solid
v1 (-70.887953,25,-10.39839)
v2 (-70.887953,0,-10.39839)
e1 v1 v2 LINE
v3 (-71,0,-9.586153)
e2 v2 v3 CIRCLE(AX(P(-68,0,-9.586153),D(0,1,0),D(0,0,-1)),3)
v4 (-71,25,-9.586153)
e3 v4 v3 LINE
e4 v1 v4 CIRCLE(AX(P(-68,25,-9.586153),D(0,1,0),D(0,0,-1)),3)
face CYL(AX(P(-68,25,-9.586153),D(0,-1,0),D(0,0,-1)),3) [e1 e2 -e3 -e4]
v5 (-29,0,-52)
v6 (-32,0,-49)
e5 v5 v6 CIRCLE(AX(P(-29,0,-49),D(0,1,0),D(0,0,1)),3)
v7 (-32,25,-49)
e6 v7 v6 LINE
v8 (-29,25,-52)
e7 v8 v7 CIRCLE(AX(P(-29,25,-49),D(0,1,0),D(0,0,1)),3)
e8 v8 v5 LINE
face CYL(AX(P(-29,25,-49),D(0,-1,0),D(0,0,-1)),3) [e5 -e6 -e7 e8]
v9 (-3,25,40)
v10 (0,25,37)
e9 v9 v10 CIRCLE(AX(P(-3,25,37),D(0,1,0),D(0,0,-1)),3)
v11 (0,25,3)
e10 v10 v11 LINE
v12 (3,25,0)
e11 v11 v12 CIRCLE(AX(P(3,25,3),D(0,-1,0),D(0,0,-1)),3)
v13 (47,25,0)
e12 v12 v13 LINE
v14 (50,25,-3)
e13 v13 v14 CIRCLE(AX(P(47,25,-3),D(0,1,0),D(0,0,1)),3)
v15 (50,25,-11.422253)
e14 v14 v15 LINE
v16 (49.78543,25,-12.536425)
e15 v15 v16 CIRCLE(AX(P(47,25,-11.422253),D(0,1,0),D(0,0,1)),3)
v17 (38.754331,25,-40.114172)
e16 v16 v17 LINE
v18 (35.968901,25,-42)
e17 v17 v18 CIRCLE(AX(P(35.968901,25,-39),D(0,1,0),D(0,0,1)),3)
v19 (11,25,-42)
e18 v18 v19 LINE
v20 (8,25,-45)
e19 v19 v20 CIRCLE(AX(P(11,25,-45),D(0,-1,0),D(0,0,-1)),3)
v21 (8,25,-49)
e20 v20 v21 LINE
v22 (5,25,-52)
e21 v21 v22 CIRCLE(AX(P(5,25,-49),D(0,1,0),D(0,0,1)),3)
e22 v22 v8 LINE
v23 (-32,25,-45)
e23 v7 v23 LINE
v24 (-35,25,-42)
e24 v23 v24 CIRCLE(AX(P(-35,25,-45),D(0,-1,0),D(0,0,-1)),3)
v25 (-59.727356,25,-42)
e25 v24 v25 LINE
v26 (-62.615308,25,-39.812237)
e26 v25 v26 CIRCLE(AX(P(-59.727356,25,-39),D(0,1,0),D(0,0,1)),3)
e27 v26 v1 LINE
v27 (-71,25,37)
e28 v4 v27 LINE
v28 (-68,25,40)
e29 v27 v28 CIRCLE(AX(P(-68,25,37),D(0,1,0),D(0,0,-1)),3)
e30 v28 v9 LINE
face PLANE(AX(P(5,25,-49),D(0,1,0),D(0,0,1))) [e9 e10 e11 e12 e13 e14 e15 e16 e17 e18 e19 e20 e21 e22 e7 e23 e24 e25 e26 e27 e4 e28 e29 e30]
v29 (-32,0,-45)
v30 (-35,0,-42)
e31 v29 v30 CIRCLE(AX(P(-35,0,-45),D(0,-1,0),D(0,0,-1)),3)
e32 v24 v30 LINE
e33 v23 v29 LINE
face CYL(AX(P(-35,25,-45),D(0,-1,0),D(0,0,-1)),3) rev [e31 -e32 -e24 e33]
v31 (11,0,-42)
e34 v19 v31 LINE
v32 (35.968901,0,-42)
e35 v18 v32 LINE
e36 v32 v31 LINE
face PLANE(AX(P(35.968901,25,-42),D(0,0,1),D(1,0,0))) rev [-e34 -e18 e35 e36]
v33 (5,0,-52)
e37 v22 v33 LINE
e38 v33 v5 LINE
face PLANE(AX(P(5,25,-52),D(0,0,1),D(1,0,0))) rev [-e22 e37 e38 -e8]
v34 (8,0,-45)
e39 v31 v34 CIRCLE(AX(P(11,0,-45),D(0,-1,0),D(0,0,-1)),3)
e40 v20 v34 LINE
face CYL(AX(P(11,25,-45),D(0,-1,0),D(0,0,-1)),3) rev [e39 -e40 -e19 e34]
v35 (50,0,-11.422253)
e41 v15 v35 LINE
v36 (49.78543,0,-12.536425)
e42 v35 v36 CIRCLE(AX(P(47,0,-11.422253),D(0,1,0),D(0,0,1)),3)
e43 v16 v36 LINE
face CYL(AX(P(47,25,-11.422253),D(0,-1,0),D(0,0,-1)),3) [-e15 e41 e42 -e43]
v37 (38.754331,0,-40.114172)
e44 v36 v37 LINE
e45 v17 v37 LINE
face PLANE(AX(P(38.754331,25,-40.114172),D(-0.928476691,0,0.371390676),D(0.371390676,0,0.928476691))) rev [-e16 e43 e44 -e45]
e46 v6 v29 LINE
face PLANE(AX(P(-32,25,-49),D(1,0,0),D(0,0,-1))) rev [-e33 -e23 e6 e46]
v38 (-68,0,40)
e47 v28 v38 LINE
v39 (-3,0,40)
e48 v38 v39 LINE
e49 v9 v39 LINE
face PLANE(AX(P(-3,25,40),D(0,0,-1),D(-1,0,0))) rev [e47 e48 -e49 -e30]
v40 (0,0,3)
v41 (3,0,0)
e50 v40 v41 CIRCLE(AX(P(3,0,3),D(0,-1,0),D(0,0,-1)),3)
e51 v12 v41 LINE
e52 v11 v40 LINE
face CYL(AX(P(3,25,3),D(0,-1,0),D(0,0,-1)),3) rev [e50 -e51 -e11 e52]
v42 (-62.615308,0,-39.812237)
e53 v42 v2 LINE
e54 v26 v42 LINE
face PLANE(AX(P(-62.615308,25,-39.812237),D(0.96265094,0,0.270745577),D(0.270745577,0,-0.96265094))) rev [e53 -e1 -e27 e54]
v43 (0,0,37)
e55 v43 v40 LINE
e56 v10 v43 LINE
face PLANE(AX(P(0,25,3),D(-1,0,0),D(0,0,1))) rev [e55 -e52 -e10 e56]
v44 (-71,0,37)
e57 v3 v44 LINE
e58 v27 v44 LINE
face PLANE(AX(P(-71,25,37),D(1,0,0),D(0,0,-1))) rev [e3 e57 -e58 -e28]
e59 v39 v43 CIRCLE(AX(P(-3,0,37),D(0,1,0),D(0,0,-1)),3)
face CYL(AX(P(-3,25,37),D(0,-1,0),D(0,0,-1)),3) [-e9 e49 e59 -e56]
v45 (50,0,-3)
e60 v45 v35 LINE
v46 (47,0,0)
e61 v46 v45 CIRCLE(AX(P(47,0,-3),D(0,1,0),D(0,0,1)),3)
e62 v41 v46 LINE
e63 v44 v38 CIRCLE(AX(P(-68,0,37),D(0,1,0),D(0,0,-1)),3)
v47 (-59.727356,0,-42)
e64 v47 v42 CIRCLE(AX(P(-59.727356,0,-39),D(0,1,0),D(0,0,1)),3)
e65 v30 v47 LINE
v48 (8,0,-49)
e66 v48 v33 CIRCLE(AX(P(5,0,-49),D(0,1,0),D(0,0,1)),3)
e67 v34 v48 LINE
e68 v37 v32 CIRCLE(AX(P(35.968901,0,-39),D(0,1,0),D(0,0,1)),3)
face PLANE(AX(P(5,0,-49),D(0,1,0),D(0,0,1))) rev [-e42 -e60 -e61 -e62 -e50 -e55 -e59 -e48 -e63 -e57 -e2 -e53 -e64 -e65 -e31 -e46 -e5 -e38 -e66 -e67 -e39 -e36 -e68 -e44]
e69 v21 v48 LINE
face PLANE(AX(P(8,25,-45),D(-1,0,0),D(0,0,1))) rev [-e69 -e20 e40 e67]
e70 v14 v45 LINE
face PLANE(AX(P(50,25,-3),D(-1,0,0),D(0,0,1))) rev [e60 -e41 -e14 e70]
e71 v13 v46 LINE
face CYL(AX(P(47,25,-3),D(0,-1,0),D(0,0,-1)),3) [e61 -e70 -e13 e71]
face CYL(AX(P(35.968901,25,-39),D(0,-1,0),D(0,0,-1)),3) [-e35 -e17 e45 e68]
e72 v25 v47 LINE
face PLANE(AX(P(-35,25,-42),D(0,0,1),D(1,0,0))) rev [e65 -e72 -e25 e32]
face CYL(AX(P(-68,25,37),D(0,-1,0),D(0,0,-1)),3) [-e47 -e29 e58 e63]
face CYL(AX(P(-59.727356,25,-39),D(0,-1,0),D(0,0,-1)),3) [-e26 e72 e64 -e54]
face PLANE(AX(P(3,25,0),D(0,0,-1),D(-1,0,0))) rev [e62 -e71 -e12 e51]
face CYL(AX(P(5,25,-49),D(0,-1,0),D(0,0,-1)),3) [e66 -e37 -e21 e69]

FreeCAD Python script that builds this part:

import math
import FreeCAD as App
import Part
import Sketcher

doc = App.newDocument("Part")
body = doc.addObject("PartDesign::Body", "Body")

# Sketch on XZ plane
sketch1 = body.newObject("Sketcher::SketchObject", "Sketch")
sketch1.AttachmentSupport = (doc.getObject("XZ_Plane"), [""])
sketch1.MapMode = "FlatFace"
sketch1.addGeometry(Part.LineSegment(App.Vector(0, 37, 0), App.Vector(0, 3, 0)), False)
sketch1.addGeometry(Part.ArcOfCircle(Part.Circle(App.Vector(3, 3, 0), App.Vector(0, 0, 1), 3), math.radians(180), math.radians(270)), False)
sketch1.addGeometry(Part.LineSegment(App.Vector(3, 0, 0), App.Vector(47, 0, 0)), False)
sketch1.addGeometry(Part.ArcOfCircle(Part.Circle(App.Vector(47, -3, 0), App.Vector(0, 0, 1), 3), math.radians(0), math.radians(90)), False)
sketch1.addGeometry(Part.LineSegment(App.Vector(50, -3, 0), App.Vector(50, -11.422253, 0)), False)
sketch1.addGeometry(Part.ArcOfCircle(Part.Circle(App.Vector(47, -11.422253, 0), App.Vector(0, 0, 1), 3), math.radians(-21.801409), math.radians(0)), False)
sketch1.addGeometry(Part.LineSegment(App.Vector(49.78543, -12.536425, 0), App.Vector(38.754331, -40.114172, 0)), False)
sketch1.addGeometry(Part.ArcOfCircle(Part.Circle(App.Vector(35.968901, -39, 0), App.Vector(0, 0, 1), 3), math.radians(-90), math.radians(-21.801409)), False)
sketch1.addGeometry(Part.LineSegment(App.Vector(35.968901, -42, 0), App.Vector(11, -42, 0)), False)
sketch1.addGeometry(Part.ArcOfCircle(Part.Circle(App.Vector(11, -45, 0), App.Vector(0, 0, 1), 3), math.radians(90), math.radians(180)), False)
sketch1.addGeometry(Part.LineSegment(App.Vector(8, -45, 0), App.Vector(8, -49, 0)), False)
sketch1.addGeometry(Part.ArcOfCircle(Part.Circle(App.Vector(5, -49, 0), App.Vector(0, 0, 1), 3), math.radians(-90), math.radians(0)), False)
sketch1.addGeometry(Part.LineSegment(App.Vector(5, -52, 0), App.Vector(-29, -52, 0)), False)
sketch1.addGeometry(Part.ArcOfCircle(Part.Circle(App.Vector(-29, -49, 0), App.Vector(0, 0, 1), 3), math.radians(180), math.radians(270)), False)
sketch1.addGeometry(Part.LineSegment(App.Vector(-32, -49, 0), App.Vector(-32, -45, 0)), False)
sketch1.addGeometry(Part.ArcOfCircle(Part.Circle(App.Vector(-35, -45, 0), App.Vector(0, 0, 1), 3), math.radians(0), math.radians(90)), False)
sketch1.addGeometry(Part.LineSegment(App.Vector(-35, -42, 0), App.Vector(-59.727356, -42, 0)), False)
sketch1.addGeometry(Part.ArcOfCircle(Part.Circle(App.Vector(-59.727356, -39, 0), App.Vector(0, 0, 1), 3), math.radians(-164.291362), math.radians(-90)), False)
sketch1.addGeometry(Part.LineSegment(App.Vector(-62.615308, -39.812237, 0), App.Vector(-70.887953, -10.39839, 0)), False)
sketch1.addGeometry(Part.ArcOfCircle(Part.Circle(App.Vector(-68, -9.586153, 0), App.Vector(0, 0, 1), 3), math.radians(180), math.radians(195.708638)), False)
sketch1.addGeometry(Part.LineSegment(App.Vector(-71, -9.586153, 0), App.Vector(-71, 37, 0)), False)
sketch1.addGeometry(Part.ArcOfCircle(Part.Circle(App.Vector(-68, 37, 0), App.Vector(0, 0, 1), 3), math.radians(90), math.radians(180)), False)
sketch1.addGeometry(Part.LineSegment(App.Vector(-68, 40, 0), App.Vector(-3, 40, 0)), False)
sketch1.addGeometry(Part.ArcOfCircle(Part.Circle(App.Vector(-3, 37, 0), App.Vector(0, 0, 1), 3), math.radians(0), math.radians(90)), False)
sketch1.addConstraint(Sketcher.Constraint("Tangent", 0, 2, 1, 1))
sketch1.addConstraint(Sketcher.Constraint("Tangent", 1, 2, 2, 1))
sketch1.addConstraint(Sketcher.Constraint("Tangent", 2, 2, 3, 2))
sketch1.addConstraint(Sketcher.Constraint("Tangent", 3, 1, 4, 1))
sketch1.addConstraint(Sketcher.Constraint("Tangent", 4, 2, 5, 2))
sketch1.addConstraint(Sketcher.Constraint("Tangent", 5, 1, 6, 1))
sketch1.addConstraint(Sketcher.Constraint("Tangent", 6, 2, 7, 2))
sketch1.addConstraint(Sketcher.Constraint("Tangent", 7, 1, 8, 1))
sketch1.addConstraint(Sketcher.Constraint("Tangent", 8, 2, 9, 1))
sketch1.addConstraint(Sketcher.Constraint("Tangent", 9, 2, 10, 1))
sketch1.addConstraint(Sketcher.Constraint("Tangent", 10, 2, 11, 2))
sketch1.addConstraint(Sketcher.Constraint("Tangent", 11, 1, 12, 1))
sketch1.addConstraint(Sketcher.Constraint("Tangent", 12, 2, 13, 2))
sketch1.addConstraint(Sketcher.Constraint("Tangent", 13, 1, 14, 1))
sketch1.addConstraint(Sketcher.Constraint("Tangent", 14, 2, 15, 1))
sketch1.addConstraint(Sketcher.Constraint("Tangent", 15, 2, 16, 1))
sketch1.addConstraint(Sketcher.Constraint("Tangent", 16, 2, 17, 2))
sketch1.addConstraint(Sketcher.Constraint("Tangent", 17, 1, 18, 1))
sketch1.addConstraint(Sketcher.Constraint("Tangent", 18, 2, 19, 2))
sketch1.addConstraint(Sketcher.Constraint("Tangent", 19, 1, 20, 1))
sketch1.addConstraint(Sketcher.Constraint("Tangent", 20, 2, 21, 2))
sketch1.addConstraint(Sketcher.Constraint("Tangent", 21, 1, 22, 1))
sketch1.addConstraint(Sketcher.Constraint("Tangent", 22, 2, 23, 2))
sketch1.addConstraint(Sketcher.Constraint("Tangent", 23, 1, 0, 1))
sketch1.addConstraint(Sketcher.Constraint("Vertical", 0))
sketch1.addConstraint(Sketcher.Constraint("Horizontal", 2))
sketch1.addConstraint(Sketcher.Constraint("Vertical", 4))
sketch1.addConstraint(Sketcher.Constraint("Horizontal", 8))
sketch1.addConstraint(Sketcher.Constraint("Vertical", 10))
sketch1.addConstraint(Sketcher.Constraint("Horizontal", 12))
sketch1.addConstraint(Sketcher.Constraint("Vertical", 14))
sketch1.addConstraint(Sketcher.Constraint("Horizontal", 16))
sketch1.addConstraint(Sketcher.Constraint("Vertical", 20))
sketch1.addConstraint(Sketcher.Constraint("Horizontal", 22))
sketch1.addConstraint(Sketcher.Constraint("Equal", 1, 3))
sketch1.addConstraint(Sketcher.Constraint("Equal", 3, 5))
sketch1.addConstraint(Sketcher.Constraint("Equal", 5, 7))
sketch1.addConstraint(Sketcher.Constraint("Equal", 7, 9))
sketch1.addConstraint(Sketcher.Constraint("Equal", 9, 11))
sketch1.addConstraint(Sketcher.Constraint("Equal", 11, 13))
sketch1.addConstraint(Sketcher.Constraint("Equal", 13, 15))
sketch1.addConstraint(Sketcher.Constraint("Equal", 15, 17))
sketch1.addConstraint(Sketcher.Constraint("Equal", 17, 19))
sketch1.addConstraint(Sketcher.Constraint("Equal", 19, 21))
sketch1.addConstraint(Sketcher.Constraint("Equal", 21, 23))
sketch1.addConstraint(Sketcher.Constraint("PointOnObject", 0, 2, -2))
sketch1.addConstraint(Sketcher.Constraint("PointOnObject", 1, 2, -1))
sketch1.addConstraint(Sketcher.Constraint("Horizontal", 9, 3, 15, 3))
sketch1.addConstraint(Sketcher.Constraint("Equal", 12, 0))
sketch1.addConstraint(Sketcher.Constraint("Radius", 1, 3.0))
sketch1.addConstraint(Sketcher.Constraint("DistanceX", 2, 1, 2, 2, 44.0))
sketch1.addConstraint(Sketcher.Constraint("DistanceX", 12, 2, 12, 1, 34.0))
sketch1.addConstraint(Sketcher.Constraint("DistanceX", 22, 1, 22, 2, 65.0))
sketch1.addConstraint(Sketcher.Constraint("DistanceY", 10, 2, 10, 1, 4.0))
sketch1.addConstraint(Sketcher.Constraint("DistanceY", 7, 3, -1, 1, 39.0))
sketch1.addConstraint(Sketcher.Constraint("DistanceX", -1, 1, 9, 3, 11.0))
sketch1.addConstraint(Sketcher.Constraint("DistanceX", 8, 2, 8, 1, 24.968901))
sketch1.addConstraint(Sketcher.Constraint("Distance", 18, 30.555049))
sketch1.addConstraint(Sketcher.Constraint("DistanceX", 16, 2, 16, 1, 24.727356))
sketch1.addConstraint(Sketcher.Constraint("DistanceY", 4, 2, 4, 1, 8.422253))
pad1 = body.newObject("PartDesign::Pad", "Pad")
pad1.Profile = sketch1
pad1.Length = 25
pad1.Reversed = True

doc.recompute()
